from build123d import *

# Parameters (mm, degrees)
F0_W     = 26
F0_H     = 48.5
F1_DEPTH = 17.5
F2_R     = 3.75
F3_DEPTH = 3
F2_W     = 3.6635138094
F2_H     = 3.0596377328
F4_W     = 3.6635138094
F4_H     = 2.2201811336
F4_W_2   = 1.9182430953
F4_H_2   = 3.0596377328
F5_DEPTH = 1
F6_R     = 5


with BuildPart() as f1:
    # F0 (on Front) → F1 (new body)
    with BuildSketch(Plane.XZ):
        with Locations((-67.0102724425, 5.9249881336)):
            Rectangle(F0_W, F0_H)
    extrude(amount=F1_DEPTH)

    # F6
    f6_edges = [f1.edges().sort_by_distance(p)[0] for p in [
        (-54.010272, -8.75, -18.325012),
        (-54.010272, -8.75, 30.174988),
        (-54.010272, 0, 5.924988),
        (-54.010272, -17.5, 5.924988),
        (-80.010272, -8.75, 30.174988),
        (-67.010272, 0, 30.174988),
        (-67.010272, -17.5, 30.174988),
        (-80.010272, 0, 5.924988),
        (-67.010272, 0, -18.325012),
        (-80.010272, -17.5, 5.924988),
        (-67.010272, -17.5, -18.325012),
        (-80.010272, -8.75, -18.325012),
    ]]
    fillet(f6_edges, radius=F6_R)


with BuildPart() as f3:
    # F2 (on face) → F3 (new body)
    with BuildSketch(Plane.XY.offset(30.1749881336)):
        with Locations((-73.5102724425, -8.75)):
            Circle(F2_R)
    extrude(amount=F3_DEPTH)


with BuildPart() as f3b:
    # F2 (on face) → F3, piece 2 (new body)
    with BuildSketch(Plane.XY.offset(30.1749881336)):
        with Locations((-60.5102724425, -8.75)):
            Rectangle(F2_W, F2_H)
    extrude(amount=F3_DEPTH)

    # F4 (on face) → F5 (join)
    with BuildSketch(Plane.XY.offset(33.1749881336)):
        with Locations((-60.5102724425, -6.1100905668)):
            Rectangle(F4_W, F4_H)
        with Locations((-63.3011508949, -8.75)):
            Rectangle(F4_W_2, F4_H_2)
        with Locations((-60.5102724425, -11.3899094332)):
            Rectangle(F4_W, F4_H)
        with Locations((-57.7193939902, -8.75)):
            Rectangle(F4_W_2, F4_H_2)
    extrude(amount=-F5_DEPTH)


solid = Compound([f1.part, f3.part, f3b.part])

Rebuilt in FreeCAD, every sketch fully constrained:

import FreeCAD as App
import Part
import Sketcher
Q = App.Units.Quantity


def add_polygon(sketch, points):
    """Adds a closed chain of lines whose ends are joined by coincident constraints."""
    first, n = sketch.GeometryCount, len(points)
    for a, b in zip(points, points[1:] + points[:1]):
        sketch.addGeometry(Part.LineSegment(App.Vector(*a, 0), App.Vector(*b, 0)), False)
    for i in range(n):
        sketch.addConstraint(Sketcher.Constraint("Coincident", first + i, 2, first + (i + 1) % n, 1))

doc = App.newDocument("Part")
body = doc.addObject("PartDesign::Body", "Body")

sketch1 = doc.addObject("Sketcher::SketchObject", "Sketch")
body.addObject(sketch1)
sketch1.AttachmentSupport = (doc.XZ_Plane, [""])
sketch1.MapMode = "FlatFace"
add_polygon(sketch1, [(-80, 30), (-80, -18), (-54, -18), (-54, 30)])
sketch1.addConstraint([
    Sketcher.Constraint("Vertical", 0),
    Sketcher.Constraint("Horizontal", 1),
    Sketcher.Constraint("Vertical", 2),
    Sketcher.Constraint("Horizontal", 3),
    Sketcher.Constraint("DistanceX", 1, 1, 1, 2, Q("26 mm")),
    Sketcher.Constraint("DistanceY", 0, 2, 0, 1, Q("48.5 mm")),
    Sketcher.Constraint("DistanceY", 0, 2, -1, 1, Q("18.325012 mm")),
    Sketcher.Constraint("DistanceX", 0, 2, -1, 1, Q("80.010272 mm")),
])
pad1 = doc.addObject("PartDesign::Pad", "Pad")
body.addObject(pad1)
pad1.Profile = sketch1
pad1.Length = 17.5
doc.recompute()

fillet = doc.addObject("PartDesign::Fillet", "Fillet")
body.addObject(fillet)
fillet.Base = (pad1, ["Edge1"])
fillet.UseAllEdges = True
fillet.Radius = 5
body2 = doc.addObject("PartDesign::Body", "Body001")

sketch2 = doc.addObject("Sketcher::SketchObject", "Sketch001")
body2.addObject(sketch2)
sketch2.AttachmentSupport = (doc.getObject("XY_Plane001"), [""])
sketch2.MapMode = "FlatFace"
sketch2.AttachmentOffset = App.Placement(App.Vector(0, 0, 30.174988), App.Rotation())
sketch2.addGeometry(Part.Circle(App.Vector(-73.5, -8.8, 0), App.Vector(0, 0, 1), 3.8), False)
sketch2.addConstraint([
    Sketcher.Constraint("Diameter", 0, Q("7.5 mm")),
    Sketcher.Constraint("DistanceY", 0, 3, -1, 1, Q("8.75 mm")),
    Sketcher.Constraint("DistanceX", 0, 3, -1, 1, Q("73.510272 mm")),
])
pad2 = doc.addObject("PartDesign::Pad", "Pad001")
body2.addObject(pad2)
pad2.Profile = sketch2
pad2.Length = 3
body3 = doc.addObject("PartDesign::Body", "Body002")

sketch3 = doc.addObject("Sketcher::SketchObject", "Sketch002")
body3.addObject(sketch3)
sketch3.AttachmentSupport = (doc.getObject("XY_Plane002"), [""])
sketch3.MapMode = "FlatFace"
sketch3.AttachmentOffset = App.Placement(App.Vector(0, 0, 30.174988), App.Rotation())
add_polygon(sketch3, [(-62.3, -7.2), (-62.3, -10.3), (-58.7, -10.3), (-58.7, -7.2)])
sketch3.addConstraint([
    Sketcher.Constraint("Vertical", 0),
    Sketcher.Constraint("Horizontal", 1),
    Sketcher.Constraint("Vertical", 2),
    Sketcher.Constraint("Horizontal", 3),
    Sketcher.Constraint("DistanceX", 1, 1, 1, 2, Q("3.663514 mm")),
    Sketcher.Constraint("DistanceY", 0, 2, 0, 1, Q("3.059638 mm")),
    Sketcher.Constraint("DistanceX", 0, 2, -1, 1, Q("62.342029 mm")),
    Sketcher.Constraint("DistanceY", 0, 2, -1, 1, Q("10.279819 mm")),
])
pad3 = doc.addObject("PartDesign::Pad", "Pad002")
body3.addObject(pad3)
pad3.Profile = sketch3
pad3.Length = 3

sketch4 = doc.addObject("Sketcher::SketchObject", "Sketch003")
body3.addObject(sketch4)
sketch4.AttachmentSupport = (doc.getObject("XY_Plane002"), [""])
sketch4.MapMode = "FlatFace"
sketch4.AttachmentOffset = App.Placement(App.Vector(0, 0, 33.174988), App.Rotation())
add_polygon(sketch4, [(-62.3, -5), (-62.3, -7.2), (-58.7, -7.2), (-58.7, -5)])
add_polygon(sketch4, [(-64.3, -7.2), (-64.3, -10.3), (-62.3, -10.3), (-62.3, -7.2)])
add_polygon(sketch4, [(-62.3, -10.3), (-62.3, -12.5), (-58.7, -12.5), (-58.7, -10.3)])
add_polygon(sketch4, [(-58.7, -7.2), (-58.7, -10.3), (-56.8, -10.3), (-56.8, -7.2)])
sketch4.addConstraint([
    Sketcher.Constraint("Vertical", 0),
    Sketcher.Constraint("Horizontal", 1),
    Sketcher.Constraint("Vertical", 2),
    Sketcher.Constraint("Horizontal", 3),
    Sketcher.Constraint("Vertical", 4),
    Sketcher.Constraint("Horizontal", 5),
    Sketcher.Constraint("Vertical", 6),
    Sketcher.Constraint("Horizontal", 7),
    Sketcher.Constraint("Vertical", 8),
    Sketcher.Constraint("Horizontal", 9),
    Sketcher.Constraint("Vertical", 10),
    Sketcher.Constraint("Horizontal", 11),
    Sketcher.Constraint("Vertical", 12),
    Sketcher.Constraint("Horizontal", 13),
    Sketcher.Constraint("Vertical", 14),
    Sketcher.Constraint("Horizontal", 15),
    Sketcher.Constraint("Coincident", 6, 2, 0, 2),
    Sketcher.Constraint("Coincident", 11, 2, 5, 2),
    Sketcher.Constraint("Coincident", 12, 2, 10, 2),
    Sketcher.Constraint("Coincident", 15, 2, 1, 2),
    Sketcher.Constraint("Equal", 7, 13),
    Sketcher.Constraint("Equal", 2, 8),
    Sketcher.Constraint("DistanceY", 2, 2, -1, 1, Q("5 mm")),
    Sketcher.Constraint("DistanceY", 8, 2, -1, 1, Q("12.5 mm")),
    Sketcher.Constraint("DistanceY", 0, 2, 0, 1, Q("2.220181 mm")),
    Sketcher.Constraint("DistanceX", 1, 1, 1, 2, Q("3.663514 mm")),
    Sketcher.Constraint("DistanceX", 5, 1, 5, 2, Q("1.918243 mm")),
    Sketcher.Constraint("DistanceX", 0, 2, -1, 1, Q("62.342029 mm")),
])
pad4 = doc.addObject("PartDesign::Pad", "Pad003")
body3.addObject(pad4)
pad4.Profile = sketch4
pad4.Length = 1
pad4.Reversed = True

doc.recompute()
